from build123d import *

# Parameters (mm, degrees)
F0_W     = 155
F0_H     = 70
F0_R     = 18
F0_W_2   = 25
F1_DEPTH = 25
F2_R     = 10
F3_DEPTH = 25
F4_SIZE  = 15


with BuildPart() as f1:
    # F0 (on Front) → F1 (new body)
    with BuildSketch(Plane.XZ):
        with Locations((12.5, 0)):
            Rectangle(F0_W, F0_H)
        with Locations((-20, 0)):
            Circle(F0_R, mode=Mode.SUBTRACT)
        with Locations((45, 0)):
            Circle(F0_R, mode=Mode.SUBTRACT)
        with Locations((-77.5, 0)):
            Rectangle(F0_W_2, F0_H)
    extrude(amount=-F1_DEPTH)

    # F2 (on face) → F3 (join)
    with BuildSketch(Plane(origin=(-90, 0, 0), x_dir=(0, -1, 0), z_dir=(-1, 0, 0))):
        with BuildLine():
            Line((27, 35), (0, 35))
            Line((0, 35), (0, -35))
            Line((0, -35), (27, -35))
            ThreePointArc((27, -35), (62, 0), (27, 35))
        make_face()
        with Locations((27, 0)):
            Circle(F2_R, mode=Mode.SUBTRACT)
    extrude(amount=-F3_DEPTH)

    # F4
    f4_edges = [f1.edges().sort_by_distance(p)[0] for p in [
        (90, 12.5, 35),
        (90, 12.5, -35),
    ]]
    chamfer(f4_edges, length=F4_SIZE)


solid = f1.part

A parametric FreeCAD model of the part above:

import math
import FreeCAD as App
import Part
import Sketcher

V = App.Vector


def edges_at(feature, points):
    """Names of the edges that pass closest to the given points."""
    edges = feature.Shape.Edges
    near = lambda p: min(range(len(edges)), key=lambda i: edges[i].distToShape(Part.Vertex(*p))[0])
    return sorted({f"Edge{near(p) + 1}" for p in points})


def add_polygon(sketch, points):
    """Adds a closed chain of lines whose ends are joined by coincident constraints."""
    first, n = sketch.GeometryCount, len(points)
    for a, b in zip(points, points[1:] + points[:1]):
        sketch.addGeometry(Part.LineSegment(App.Vector(*a, 0), App.Vector(*b, 0)), False)
    for i in range(n):
        sketch.addConstraint(Sketcher.Constraint("Coincident", first + i, 2, first + (i + 1) % n, 1))

doc = App.newDocument("Part")
body = doc.addObject("PartDesign::Body", "Body")

sketch1 = body.newObject("Sketcher::SketchObject", "Sketch")
sketch1.AttachmentSupport = (doc.getObject("XZ_Plane"), [""])
sketch1.MapMode = "FlatFace"
add_polygon(sketch1, [(90, -35), (90, 35), (-90, 35), (-90, -35)])
sketch1.addGeometry(Part.Circle(V(-20, 0, 0), V(0, 0, 1), 18), False)
sketch1.addGeometry(Part.Circle(V(45, 0, 0), V(0, 0, 1), 18), False)
sketch1.addConstraint([
    Sketcher.Constraint("Vertical", 0),
    Sketcher.Constraint("Horizontal", 1),
    Sketcher.Constraint("Vertical", 2),
    Sketcher.Constraint("Horizontal", 3),
    Sketcher.Constraint("Equal", 4, 5),
    Sketcher.Constraint("Symmetric", 0, 2, 2, 2, -1, 1),
    Sketcher.Constraint("PointOnObject", 4, 3, -1),
    Sketcher.Constraint("PointOnObject", 5, 3, -1),
    Sketcher.Constraint("Diameter", 4, 36.0),
    Sketcher.Constraint("DistanceX", 1, 2, 1, 1, 180.0),
    Sketcher.Constraint("DistanceY", 0, 1, 0, 2, 70.0),
    Sketcher.Constraint("DistanceX", 4, 3, -1, 1, 20.0),
    Sketcher.Constraint("DistanceX", -1, 1, 5, 3, 45.0),
])
pad1 = body.newObject("PartDesign::Pad", "Pad")
pad1.Profile = sketch1
pad1.Length = 25
pad1.Reversed = True

sketch2 = body.newObject("Sketcher::SketchObject", "Sketch001")
sketch2.AttachmentSupport = (doc.getObject("YZ_Plane"), [""])
sketch2.MapMode = "FlatFace"
sketch2.AttachmentOffset = App.Placement(V(0, 0, -90), App.Rotation())
sketch2.addGeometry([
    Part.LineSegment(V(-27, 35, 0), V(0, 35, 0)),
    Part.LineSegment(V(0, 35, 0), V(0, -35, 0)),
    Part.LineSegment(V(0, -35, 0), V(-27, -35, 0)),
    Part.ArcOfCircle(Part.Circle(V(-27, 0, 0), V(0, 0, 1), 35), math.radians(90), math.radians(270)),
    Part.Circle(V(-27, 0, 0), V(0, 0, 1), 10),
], False)
sketch2.addConstraint([
    Sketcher.Constraint("Coincident", 0, 2, 1, 1),
    Sketcher.Constraint("Coincident", 1, 2, 2, 1),
    Sketcher.Constraint("Tangent", 2, 2, 3, 2),
    Sketcher.Constraint("Tangent", 3, 1, 0, 1),
    Sketcher.Constraint("Horizontal", 0),
    Sketcher.Constraint("Vertical", 1),
    Sketcher.Constraint("Horizontal", 2),
    Sketcher.Constraint("Coincident", 4, 3, 3, 3),
    Sketcher.Constraint("Symmetric", 0, 2, 1, 2, -1, 1),
    Sketcher.Constraint("Diameter", 4, 20.0),
    Sketcher.Constraint("Radius", 3, 35.0),
    Sketcher.Constraint("DistanceX", 0, 1, 0, 2, 27.0),
])
pad2 = body.newObject("PartDesign::Pad", "Pad001")
pad2.Profile = sketch2
pad2.Length = 25
doc.recompute()

chamfer = body.newObject("PartDesign::Chamfer", "Chamfer")
chamfer.Base = (pad2, edges_at(pad2, [(90, 12.5, 35), (90, 12.5, -35)]))
chamfer.Size = 15

doc.recompute()
